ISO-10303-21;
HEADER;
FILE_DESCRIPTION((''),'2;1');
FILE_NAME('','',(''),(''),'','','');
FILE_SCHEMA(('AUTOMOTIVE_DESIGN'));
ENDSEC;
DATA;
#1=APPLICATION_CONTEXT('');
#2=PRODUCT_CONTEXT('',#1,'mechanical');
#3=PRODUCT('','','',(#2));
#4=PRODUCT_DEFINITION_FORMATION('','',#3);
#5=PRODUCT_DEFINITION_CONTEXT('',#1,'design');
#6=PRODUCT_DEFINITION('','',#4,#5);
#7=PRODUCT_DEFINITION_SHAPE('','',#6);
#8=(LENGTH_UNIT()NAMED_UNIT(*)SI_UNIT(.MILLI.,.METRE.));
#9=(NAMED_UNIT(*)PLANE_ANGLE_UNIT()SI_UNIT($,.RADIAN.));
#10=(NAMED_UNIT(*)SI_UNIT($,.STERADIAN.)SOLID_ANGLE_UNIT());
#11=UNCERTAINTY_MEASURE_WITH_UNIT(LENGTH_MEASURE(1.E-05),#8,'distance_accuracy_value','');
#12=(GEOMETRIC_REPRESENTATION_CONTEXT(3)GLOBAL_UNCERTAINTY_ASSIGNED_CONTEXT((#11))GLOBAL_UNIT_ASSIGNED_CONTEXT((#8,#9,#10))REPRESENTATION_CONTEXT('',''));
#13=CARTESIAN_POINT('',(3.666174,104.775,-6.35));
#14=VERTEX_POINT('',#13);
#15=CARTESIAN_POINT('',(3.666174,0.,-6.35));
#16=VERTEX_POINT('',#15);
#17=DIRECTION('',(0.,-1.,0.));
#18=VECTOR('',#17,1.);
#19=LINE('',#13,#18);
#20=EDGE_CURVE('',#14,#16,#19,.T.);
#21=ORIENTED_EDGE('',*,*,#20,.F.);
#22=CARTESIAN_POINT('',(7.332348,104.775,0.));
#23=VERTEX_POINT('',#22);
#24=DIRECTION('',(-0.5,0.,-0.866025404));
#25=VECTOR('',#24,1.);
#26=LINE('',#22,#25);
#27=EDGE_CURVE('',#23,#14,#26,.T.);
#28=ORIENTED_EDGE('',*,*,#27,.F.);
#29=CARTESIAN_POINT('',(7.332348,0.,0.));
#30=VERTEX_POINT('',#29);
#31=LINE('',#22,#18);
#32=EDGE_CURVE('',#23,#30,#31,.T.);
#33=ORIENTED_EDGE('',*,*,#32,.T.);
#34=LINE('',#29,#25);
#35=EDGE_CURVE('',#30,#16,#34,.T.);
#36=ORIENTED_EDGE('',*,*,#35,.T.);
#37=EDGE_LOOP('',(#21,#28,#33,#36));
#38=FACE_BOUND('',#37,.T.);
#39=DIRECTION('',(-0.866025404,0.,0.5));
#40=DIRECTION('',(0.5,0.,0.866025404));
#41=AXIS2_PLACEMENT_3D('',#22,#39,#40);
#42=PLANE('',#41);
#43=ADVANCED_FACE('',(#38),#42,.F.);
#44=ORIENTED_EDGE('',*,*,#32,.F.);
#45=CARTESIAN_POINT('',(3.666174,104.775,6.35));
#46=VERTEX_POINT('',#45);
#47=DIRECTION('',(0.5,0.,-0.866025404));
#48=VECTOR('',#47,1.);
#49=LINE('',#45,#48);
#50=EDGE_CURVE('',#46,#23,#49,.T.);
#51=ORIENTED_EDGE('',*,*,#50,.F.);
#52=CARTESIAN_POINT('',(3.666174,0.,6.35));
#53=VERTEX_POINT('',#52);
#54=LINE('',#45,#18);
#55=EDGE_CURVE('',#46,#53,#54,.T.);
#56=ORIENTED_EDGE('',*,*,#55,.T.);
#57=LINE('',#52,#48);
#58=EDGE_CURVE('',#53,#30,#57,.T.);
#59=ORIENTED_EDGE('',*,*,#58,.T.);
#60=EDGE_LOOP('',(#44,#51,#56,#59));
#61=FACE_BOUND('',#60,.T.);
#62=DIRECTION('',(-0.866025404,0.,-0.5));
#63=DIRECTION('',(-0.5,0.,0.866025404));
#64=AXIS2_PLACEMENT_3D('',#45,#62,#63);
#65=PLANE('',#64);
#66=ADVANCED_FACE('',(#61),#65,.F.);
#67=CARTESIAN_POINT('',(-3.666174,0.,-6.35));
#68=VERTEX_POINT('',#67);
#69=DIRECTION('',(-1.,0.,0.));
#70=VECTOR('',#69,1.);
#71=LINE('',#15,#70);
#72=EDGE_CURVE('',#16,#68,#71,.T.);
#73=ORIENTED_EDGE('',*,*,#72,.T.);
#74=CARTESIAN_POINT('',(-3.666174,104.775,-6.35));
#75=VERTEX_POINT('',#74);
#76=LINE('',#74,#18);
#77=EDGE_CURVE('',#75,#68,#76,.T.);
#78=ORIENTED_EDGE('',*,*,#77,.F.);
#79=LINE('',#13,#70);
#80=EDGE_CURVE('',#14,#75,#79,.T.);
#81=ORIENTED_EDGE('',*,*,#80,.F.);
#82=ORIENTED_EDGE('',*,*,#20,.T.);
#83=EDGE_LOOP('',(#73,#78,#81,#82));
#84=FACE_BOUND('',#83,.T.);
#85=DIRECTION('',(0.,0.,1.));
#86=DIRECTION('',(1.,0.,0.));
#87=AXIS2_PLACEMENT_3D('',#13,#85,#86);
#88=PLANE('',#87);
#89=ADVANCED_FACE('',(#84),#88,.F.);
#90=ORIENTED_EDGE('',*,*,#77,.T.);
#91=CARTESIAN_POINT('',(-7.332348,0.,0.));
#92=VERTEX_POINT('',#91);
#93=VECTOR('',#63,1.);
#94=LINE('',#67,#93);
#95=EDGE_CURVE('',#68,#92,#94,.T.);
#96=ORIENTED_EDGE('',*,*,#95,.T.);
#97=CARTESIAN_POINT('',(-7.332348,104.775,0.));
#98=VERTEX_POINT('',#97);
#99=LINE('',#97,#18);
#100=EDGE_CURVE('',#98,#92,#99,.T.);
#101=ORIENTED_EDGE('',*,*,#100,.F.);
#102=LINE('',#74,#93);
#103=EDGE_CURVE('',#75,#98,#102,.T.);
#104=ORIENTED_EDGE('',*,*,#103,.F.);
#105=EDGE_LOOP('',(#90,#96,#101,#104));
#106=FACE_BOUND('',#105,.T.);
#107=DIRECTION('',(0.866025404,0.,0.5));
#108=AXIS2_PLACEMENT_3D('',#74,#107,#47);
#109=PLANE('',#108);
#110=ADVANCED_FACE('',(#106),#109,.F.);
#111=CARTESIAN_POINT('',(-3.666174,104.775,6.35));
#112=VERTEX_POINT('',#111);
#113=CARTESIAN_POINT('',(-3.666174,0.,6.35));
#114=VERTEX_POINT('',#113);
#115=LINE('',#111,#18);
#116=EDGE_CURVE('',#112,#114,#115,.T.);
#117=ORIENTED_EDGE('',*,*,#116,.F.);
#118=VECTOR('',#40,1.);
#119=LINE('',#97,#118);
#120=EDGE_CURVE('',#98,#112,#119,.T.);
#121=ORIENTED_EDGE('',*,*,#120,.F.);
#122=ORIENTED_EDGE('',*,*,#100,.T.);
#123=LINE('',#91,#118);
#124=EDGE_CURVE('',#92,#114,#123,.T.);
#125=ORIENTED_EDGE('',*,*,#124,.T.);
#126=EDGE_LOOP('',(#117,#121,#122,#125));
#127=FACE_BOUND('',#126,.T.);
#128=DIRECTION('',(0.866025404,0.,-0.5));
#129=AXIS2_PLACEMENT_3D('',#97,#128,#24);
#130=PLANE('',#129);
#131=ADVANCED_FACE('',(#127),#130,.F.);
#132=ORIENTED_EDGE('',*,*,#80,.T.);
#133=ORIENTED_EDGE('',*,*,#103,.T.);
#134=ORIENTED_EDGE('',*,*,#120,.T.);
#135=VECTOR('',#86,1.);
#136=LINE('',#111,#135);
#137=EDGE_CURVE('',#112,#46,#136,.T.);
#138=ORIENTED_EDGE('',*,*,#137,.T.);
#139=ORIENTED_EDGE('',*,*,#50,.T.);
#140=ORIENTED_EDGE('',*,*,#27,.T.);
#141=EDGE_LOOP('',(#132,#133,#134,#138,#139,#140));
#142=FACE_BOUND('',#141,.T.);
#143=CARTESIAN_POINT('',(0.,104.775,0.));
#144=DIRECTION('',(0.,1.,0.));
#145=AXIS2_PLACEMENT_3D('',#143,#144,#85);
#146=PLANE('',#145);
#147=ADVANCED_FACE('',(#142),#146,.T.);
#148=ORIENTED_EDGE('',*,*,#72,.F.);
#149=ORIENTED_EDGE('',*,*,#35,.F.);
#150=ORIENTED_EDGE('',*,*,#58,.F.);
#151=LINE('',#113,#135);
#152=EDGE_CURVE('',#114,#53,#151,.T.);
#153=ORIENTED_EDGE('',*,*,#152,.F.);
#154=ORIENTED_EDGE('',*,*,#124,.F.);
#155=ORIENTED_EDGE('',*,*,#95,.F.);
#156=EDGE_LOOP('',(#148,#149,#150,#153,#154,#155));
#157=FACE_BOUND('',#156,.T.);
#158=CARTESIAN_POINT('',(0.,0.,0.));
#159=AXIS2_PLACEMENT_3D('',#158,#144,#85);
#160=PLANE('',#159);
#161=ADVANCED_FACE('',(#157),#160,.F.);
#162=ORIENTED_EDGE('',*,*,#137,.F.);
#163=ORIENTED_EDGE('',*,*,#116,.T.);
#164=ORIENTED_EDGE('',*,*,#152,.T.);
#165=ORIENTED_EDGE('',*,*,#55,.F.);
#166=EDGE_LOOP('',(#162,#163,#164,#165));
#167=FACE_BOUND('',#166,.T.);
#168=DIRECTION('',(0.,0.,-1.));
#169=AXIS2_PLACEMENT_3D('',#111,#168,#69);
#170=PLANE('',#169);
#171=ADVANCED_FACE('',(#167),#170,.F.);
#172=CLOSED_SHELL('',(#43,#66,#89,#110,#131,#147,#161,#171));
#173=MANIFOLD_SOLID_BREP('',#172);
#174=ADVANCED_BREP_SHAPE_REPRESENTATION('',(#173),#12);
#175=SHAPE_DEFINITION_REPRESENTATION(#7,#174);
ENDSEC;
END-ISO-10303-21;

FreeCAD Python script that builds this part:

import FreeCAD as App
import Part
import Sketcher
Q = App.Units.Quantity

doc = App.newDocument("Part")
params = doc.addObject("Spreadsheet::Sheet", "Params")
for row, (alias, value) in enumerate([
    ("pad1_length", "4.125 in"),
], start=1):
    params.set(f"A{row}", alias)
    params.set(f"B{row}", "=" + value)
    params.setAlias(f"B{row}", alias)

body = doc.addObject("PartDesign::Body", "Body")

# Sketch on XZ plane
sketch1 = doc.addObject("Sketcher::SketchObject", "Sketch")
body.addObject(sketch1)
sketch1.AttachmentSupport = (doc.XZ_Plane, [""])
sketch1.MapMode = "FlatFace"
sketch1.addGeometry([
    Part.LineSegment(App.Vector(7, 0, 0), App.Vector(4, -6, 0)),  # 0
    Part.LineSegment(App.Vector(4, -6, 0), App.Vector(-4, -6, 0)),  # 1
    Part.LineSegment(App.Vector(-4, -6, 0), App.Vector(-7, 0, 0)),  # 2
    Part.LineSegment(App.Vector(-7, 0, 0), App.Vector(-4, 6, 0)),  # 3
    Part.LineSegment(App.Vector(-4, 6, 0), App.Vector(4, 6, 0)),  # 4
    Part.LineSegment(App.Vector(4, 6, 0), App.Vector(7, 0, 0)),  # 5
], False)
sketch1.addConstraint([
    Sketcher.Constraint("Coincident", 0, 2, 1, 1),
    Sketcher.Constraint("Coincident", 1, 2, 2, 1),
    Sketcher.Constraint("Coincident", 2, 2, 3, 1),
    Sketcher.Constraint("Coincident", 3, 2, 4, 1),
    Sketcher.Constraint("Coincident", 4, 2, 5, 1),
    Sketcher.Constraint("Coincident", 5, 2, 0, 1),
    Sketcher.Constraint("Horizontal", 1),
    Sketcher.Constraint("Horizontal", 4),
    Sketcher.Constraint("Symmetric", 0, 2, 3, 2, -1, 1),
    Sketcher.Constraint("Symmetric", 2, 2, 5, 2, -1, 1),
    Sketcher.Constraint("PointOnObject", 2, 2, -1),
    Sketcher.Constraint("Parallel", 2, 5),
    Sketcher.Constraint("Vertical", 1, 2, 3, 2),
    Sketcher.Constraint("Angle", 0, Q("-120 deg")),
    Sketcher.Constraint("DistanceY", 1, 2, 3, 2, Q("0.5 in")),
    Sketcher.Constraint("DistanceX", 1, 2, 1, 1, 7.332348),
])
pad1 = doc.addObject("PartDesign::Pad", "Pad")
body.addObject(pad1)
pad1.Profile = sketch1
pad1.setExpression("Length", "Params.pad1_length")
pad1.Reversed = True

doc.recompute()
